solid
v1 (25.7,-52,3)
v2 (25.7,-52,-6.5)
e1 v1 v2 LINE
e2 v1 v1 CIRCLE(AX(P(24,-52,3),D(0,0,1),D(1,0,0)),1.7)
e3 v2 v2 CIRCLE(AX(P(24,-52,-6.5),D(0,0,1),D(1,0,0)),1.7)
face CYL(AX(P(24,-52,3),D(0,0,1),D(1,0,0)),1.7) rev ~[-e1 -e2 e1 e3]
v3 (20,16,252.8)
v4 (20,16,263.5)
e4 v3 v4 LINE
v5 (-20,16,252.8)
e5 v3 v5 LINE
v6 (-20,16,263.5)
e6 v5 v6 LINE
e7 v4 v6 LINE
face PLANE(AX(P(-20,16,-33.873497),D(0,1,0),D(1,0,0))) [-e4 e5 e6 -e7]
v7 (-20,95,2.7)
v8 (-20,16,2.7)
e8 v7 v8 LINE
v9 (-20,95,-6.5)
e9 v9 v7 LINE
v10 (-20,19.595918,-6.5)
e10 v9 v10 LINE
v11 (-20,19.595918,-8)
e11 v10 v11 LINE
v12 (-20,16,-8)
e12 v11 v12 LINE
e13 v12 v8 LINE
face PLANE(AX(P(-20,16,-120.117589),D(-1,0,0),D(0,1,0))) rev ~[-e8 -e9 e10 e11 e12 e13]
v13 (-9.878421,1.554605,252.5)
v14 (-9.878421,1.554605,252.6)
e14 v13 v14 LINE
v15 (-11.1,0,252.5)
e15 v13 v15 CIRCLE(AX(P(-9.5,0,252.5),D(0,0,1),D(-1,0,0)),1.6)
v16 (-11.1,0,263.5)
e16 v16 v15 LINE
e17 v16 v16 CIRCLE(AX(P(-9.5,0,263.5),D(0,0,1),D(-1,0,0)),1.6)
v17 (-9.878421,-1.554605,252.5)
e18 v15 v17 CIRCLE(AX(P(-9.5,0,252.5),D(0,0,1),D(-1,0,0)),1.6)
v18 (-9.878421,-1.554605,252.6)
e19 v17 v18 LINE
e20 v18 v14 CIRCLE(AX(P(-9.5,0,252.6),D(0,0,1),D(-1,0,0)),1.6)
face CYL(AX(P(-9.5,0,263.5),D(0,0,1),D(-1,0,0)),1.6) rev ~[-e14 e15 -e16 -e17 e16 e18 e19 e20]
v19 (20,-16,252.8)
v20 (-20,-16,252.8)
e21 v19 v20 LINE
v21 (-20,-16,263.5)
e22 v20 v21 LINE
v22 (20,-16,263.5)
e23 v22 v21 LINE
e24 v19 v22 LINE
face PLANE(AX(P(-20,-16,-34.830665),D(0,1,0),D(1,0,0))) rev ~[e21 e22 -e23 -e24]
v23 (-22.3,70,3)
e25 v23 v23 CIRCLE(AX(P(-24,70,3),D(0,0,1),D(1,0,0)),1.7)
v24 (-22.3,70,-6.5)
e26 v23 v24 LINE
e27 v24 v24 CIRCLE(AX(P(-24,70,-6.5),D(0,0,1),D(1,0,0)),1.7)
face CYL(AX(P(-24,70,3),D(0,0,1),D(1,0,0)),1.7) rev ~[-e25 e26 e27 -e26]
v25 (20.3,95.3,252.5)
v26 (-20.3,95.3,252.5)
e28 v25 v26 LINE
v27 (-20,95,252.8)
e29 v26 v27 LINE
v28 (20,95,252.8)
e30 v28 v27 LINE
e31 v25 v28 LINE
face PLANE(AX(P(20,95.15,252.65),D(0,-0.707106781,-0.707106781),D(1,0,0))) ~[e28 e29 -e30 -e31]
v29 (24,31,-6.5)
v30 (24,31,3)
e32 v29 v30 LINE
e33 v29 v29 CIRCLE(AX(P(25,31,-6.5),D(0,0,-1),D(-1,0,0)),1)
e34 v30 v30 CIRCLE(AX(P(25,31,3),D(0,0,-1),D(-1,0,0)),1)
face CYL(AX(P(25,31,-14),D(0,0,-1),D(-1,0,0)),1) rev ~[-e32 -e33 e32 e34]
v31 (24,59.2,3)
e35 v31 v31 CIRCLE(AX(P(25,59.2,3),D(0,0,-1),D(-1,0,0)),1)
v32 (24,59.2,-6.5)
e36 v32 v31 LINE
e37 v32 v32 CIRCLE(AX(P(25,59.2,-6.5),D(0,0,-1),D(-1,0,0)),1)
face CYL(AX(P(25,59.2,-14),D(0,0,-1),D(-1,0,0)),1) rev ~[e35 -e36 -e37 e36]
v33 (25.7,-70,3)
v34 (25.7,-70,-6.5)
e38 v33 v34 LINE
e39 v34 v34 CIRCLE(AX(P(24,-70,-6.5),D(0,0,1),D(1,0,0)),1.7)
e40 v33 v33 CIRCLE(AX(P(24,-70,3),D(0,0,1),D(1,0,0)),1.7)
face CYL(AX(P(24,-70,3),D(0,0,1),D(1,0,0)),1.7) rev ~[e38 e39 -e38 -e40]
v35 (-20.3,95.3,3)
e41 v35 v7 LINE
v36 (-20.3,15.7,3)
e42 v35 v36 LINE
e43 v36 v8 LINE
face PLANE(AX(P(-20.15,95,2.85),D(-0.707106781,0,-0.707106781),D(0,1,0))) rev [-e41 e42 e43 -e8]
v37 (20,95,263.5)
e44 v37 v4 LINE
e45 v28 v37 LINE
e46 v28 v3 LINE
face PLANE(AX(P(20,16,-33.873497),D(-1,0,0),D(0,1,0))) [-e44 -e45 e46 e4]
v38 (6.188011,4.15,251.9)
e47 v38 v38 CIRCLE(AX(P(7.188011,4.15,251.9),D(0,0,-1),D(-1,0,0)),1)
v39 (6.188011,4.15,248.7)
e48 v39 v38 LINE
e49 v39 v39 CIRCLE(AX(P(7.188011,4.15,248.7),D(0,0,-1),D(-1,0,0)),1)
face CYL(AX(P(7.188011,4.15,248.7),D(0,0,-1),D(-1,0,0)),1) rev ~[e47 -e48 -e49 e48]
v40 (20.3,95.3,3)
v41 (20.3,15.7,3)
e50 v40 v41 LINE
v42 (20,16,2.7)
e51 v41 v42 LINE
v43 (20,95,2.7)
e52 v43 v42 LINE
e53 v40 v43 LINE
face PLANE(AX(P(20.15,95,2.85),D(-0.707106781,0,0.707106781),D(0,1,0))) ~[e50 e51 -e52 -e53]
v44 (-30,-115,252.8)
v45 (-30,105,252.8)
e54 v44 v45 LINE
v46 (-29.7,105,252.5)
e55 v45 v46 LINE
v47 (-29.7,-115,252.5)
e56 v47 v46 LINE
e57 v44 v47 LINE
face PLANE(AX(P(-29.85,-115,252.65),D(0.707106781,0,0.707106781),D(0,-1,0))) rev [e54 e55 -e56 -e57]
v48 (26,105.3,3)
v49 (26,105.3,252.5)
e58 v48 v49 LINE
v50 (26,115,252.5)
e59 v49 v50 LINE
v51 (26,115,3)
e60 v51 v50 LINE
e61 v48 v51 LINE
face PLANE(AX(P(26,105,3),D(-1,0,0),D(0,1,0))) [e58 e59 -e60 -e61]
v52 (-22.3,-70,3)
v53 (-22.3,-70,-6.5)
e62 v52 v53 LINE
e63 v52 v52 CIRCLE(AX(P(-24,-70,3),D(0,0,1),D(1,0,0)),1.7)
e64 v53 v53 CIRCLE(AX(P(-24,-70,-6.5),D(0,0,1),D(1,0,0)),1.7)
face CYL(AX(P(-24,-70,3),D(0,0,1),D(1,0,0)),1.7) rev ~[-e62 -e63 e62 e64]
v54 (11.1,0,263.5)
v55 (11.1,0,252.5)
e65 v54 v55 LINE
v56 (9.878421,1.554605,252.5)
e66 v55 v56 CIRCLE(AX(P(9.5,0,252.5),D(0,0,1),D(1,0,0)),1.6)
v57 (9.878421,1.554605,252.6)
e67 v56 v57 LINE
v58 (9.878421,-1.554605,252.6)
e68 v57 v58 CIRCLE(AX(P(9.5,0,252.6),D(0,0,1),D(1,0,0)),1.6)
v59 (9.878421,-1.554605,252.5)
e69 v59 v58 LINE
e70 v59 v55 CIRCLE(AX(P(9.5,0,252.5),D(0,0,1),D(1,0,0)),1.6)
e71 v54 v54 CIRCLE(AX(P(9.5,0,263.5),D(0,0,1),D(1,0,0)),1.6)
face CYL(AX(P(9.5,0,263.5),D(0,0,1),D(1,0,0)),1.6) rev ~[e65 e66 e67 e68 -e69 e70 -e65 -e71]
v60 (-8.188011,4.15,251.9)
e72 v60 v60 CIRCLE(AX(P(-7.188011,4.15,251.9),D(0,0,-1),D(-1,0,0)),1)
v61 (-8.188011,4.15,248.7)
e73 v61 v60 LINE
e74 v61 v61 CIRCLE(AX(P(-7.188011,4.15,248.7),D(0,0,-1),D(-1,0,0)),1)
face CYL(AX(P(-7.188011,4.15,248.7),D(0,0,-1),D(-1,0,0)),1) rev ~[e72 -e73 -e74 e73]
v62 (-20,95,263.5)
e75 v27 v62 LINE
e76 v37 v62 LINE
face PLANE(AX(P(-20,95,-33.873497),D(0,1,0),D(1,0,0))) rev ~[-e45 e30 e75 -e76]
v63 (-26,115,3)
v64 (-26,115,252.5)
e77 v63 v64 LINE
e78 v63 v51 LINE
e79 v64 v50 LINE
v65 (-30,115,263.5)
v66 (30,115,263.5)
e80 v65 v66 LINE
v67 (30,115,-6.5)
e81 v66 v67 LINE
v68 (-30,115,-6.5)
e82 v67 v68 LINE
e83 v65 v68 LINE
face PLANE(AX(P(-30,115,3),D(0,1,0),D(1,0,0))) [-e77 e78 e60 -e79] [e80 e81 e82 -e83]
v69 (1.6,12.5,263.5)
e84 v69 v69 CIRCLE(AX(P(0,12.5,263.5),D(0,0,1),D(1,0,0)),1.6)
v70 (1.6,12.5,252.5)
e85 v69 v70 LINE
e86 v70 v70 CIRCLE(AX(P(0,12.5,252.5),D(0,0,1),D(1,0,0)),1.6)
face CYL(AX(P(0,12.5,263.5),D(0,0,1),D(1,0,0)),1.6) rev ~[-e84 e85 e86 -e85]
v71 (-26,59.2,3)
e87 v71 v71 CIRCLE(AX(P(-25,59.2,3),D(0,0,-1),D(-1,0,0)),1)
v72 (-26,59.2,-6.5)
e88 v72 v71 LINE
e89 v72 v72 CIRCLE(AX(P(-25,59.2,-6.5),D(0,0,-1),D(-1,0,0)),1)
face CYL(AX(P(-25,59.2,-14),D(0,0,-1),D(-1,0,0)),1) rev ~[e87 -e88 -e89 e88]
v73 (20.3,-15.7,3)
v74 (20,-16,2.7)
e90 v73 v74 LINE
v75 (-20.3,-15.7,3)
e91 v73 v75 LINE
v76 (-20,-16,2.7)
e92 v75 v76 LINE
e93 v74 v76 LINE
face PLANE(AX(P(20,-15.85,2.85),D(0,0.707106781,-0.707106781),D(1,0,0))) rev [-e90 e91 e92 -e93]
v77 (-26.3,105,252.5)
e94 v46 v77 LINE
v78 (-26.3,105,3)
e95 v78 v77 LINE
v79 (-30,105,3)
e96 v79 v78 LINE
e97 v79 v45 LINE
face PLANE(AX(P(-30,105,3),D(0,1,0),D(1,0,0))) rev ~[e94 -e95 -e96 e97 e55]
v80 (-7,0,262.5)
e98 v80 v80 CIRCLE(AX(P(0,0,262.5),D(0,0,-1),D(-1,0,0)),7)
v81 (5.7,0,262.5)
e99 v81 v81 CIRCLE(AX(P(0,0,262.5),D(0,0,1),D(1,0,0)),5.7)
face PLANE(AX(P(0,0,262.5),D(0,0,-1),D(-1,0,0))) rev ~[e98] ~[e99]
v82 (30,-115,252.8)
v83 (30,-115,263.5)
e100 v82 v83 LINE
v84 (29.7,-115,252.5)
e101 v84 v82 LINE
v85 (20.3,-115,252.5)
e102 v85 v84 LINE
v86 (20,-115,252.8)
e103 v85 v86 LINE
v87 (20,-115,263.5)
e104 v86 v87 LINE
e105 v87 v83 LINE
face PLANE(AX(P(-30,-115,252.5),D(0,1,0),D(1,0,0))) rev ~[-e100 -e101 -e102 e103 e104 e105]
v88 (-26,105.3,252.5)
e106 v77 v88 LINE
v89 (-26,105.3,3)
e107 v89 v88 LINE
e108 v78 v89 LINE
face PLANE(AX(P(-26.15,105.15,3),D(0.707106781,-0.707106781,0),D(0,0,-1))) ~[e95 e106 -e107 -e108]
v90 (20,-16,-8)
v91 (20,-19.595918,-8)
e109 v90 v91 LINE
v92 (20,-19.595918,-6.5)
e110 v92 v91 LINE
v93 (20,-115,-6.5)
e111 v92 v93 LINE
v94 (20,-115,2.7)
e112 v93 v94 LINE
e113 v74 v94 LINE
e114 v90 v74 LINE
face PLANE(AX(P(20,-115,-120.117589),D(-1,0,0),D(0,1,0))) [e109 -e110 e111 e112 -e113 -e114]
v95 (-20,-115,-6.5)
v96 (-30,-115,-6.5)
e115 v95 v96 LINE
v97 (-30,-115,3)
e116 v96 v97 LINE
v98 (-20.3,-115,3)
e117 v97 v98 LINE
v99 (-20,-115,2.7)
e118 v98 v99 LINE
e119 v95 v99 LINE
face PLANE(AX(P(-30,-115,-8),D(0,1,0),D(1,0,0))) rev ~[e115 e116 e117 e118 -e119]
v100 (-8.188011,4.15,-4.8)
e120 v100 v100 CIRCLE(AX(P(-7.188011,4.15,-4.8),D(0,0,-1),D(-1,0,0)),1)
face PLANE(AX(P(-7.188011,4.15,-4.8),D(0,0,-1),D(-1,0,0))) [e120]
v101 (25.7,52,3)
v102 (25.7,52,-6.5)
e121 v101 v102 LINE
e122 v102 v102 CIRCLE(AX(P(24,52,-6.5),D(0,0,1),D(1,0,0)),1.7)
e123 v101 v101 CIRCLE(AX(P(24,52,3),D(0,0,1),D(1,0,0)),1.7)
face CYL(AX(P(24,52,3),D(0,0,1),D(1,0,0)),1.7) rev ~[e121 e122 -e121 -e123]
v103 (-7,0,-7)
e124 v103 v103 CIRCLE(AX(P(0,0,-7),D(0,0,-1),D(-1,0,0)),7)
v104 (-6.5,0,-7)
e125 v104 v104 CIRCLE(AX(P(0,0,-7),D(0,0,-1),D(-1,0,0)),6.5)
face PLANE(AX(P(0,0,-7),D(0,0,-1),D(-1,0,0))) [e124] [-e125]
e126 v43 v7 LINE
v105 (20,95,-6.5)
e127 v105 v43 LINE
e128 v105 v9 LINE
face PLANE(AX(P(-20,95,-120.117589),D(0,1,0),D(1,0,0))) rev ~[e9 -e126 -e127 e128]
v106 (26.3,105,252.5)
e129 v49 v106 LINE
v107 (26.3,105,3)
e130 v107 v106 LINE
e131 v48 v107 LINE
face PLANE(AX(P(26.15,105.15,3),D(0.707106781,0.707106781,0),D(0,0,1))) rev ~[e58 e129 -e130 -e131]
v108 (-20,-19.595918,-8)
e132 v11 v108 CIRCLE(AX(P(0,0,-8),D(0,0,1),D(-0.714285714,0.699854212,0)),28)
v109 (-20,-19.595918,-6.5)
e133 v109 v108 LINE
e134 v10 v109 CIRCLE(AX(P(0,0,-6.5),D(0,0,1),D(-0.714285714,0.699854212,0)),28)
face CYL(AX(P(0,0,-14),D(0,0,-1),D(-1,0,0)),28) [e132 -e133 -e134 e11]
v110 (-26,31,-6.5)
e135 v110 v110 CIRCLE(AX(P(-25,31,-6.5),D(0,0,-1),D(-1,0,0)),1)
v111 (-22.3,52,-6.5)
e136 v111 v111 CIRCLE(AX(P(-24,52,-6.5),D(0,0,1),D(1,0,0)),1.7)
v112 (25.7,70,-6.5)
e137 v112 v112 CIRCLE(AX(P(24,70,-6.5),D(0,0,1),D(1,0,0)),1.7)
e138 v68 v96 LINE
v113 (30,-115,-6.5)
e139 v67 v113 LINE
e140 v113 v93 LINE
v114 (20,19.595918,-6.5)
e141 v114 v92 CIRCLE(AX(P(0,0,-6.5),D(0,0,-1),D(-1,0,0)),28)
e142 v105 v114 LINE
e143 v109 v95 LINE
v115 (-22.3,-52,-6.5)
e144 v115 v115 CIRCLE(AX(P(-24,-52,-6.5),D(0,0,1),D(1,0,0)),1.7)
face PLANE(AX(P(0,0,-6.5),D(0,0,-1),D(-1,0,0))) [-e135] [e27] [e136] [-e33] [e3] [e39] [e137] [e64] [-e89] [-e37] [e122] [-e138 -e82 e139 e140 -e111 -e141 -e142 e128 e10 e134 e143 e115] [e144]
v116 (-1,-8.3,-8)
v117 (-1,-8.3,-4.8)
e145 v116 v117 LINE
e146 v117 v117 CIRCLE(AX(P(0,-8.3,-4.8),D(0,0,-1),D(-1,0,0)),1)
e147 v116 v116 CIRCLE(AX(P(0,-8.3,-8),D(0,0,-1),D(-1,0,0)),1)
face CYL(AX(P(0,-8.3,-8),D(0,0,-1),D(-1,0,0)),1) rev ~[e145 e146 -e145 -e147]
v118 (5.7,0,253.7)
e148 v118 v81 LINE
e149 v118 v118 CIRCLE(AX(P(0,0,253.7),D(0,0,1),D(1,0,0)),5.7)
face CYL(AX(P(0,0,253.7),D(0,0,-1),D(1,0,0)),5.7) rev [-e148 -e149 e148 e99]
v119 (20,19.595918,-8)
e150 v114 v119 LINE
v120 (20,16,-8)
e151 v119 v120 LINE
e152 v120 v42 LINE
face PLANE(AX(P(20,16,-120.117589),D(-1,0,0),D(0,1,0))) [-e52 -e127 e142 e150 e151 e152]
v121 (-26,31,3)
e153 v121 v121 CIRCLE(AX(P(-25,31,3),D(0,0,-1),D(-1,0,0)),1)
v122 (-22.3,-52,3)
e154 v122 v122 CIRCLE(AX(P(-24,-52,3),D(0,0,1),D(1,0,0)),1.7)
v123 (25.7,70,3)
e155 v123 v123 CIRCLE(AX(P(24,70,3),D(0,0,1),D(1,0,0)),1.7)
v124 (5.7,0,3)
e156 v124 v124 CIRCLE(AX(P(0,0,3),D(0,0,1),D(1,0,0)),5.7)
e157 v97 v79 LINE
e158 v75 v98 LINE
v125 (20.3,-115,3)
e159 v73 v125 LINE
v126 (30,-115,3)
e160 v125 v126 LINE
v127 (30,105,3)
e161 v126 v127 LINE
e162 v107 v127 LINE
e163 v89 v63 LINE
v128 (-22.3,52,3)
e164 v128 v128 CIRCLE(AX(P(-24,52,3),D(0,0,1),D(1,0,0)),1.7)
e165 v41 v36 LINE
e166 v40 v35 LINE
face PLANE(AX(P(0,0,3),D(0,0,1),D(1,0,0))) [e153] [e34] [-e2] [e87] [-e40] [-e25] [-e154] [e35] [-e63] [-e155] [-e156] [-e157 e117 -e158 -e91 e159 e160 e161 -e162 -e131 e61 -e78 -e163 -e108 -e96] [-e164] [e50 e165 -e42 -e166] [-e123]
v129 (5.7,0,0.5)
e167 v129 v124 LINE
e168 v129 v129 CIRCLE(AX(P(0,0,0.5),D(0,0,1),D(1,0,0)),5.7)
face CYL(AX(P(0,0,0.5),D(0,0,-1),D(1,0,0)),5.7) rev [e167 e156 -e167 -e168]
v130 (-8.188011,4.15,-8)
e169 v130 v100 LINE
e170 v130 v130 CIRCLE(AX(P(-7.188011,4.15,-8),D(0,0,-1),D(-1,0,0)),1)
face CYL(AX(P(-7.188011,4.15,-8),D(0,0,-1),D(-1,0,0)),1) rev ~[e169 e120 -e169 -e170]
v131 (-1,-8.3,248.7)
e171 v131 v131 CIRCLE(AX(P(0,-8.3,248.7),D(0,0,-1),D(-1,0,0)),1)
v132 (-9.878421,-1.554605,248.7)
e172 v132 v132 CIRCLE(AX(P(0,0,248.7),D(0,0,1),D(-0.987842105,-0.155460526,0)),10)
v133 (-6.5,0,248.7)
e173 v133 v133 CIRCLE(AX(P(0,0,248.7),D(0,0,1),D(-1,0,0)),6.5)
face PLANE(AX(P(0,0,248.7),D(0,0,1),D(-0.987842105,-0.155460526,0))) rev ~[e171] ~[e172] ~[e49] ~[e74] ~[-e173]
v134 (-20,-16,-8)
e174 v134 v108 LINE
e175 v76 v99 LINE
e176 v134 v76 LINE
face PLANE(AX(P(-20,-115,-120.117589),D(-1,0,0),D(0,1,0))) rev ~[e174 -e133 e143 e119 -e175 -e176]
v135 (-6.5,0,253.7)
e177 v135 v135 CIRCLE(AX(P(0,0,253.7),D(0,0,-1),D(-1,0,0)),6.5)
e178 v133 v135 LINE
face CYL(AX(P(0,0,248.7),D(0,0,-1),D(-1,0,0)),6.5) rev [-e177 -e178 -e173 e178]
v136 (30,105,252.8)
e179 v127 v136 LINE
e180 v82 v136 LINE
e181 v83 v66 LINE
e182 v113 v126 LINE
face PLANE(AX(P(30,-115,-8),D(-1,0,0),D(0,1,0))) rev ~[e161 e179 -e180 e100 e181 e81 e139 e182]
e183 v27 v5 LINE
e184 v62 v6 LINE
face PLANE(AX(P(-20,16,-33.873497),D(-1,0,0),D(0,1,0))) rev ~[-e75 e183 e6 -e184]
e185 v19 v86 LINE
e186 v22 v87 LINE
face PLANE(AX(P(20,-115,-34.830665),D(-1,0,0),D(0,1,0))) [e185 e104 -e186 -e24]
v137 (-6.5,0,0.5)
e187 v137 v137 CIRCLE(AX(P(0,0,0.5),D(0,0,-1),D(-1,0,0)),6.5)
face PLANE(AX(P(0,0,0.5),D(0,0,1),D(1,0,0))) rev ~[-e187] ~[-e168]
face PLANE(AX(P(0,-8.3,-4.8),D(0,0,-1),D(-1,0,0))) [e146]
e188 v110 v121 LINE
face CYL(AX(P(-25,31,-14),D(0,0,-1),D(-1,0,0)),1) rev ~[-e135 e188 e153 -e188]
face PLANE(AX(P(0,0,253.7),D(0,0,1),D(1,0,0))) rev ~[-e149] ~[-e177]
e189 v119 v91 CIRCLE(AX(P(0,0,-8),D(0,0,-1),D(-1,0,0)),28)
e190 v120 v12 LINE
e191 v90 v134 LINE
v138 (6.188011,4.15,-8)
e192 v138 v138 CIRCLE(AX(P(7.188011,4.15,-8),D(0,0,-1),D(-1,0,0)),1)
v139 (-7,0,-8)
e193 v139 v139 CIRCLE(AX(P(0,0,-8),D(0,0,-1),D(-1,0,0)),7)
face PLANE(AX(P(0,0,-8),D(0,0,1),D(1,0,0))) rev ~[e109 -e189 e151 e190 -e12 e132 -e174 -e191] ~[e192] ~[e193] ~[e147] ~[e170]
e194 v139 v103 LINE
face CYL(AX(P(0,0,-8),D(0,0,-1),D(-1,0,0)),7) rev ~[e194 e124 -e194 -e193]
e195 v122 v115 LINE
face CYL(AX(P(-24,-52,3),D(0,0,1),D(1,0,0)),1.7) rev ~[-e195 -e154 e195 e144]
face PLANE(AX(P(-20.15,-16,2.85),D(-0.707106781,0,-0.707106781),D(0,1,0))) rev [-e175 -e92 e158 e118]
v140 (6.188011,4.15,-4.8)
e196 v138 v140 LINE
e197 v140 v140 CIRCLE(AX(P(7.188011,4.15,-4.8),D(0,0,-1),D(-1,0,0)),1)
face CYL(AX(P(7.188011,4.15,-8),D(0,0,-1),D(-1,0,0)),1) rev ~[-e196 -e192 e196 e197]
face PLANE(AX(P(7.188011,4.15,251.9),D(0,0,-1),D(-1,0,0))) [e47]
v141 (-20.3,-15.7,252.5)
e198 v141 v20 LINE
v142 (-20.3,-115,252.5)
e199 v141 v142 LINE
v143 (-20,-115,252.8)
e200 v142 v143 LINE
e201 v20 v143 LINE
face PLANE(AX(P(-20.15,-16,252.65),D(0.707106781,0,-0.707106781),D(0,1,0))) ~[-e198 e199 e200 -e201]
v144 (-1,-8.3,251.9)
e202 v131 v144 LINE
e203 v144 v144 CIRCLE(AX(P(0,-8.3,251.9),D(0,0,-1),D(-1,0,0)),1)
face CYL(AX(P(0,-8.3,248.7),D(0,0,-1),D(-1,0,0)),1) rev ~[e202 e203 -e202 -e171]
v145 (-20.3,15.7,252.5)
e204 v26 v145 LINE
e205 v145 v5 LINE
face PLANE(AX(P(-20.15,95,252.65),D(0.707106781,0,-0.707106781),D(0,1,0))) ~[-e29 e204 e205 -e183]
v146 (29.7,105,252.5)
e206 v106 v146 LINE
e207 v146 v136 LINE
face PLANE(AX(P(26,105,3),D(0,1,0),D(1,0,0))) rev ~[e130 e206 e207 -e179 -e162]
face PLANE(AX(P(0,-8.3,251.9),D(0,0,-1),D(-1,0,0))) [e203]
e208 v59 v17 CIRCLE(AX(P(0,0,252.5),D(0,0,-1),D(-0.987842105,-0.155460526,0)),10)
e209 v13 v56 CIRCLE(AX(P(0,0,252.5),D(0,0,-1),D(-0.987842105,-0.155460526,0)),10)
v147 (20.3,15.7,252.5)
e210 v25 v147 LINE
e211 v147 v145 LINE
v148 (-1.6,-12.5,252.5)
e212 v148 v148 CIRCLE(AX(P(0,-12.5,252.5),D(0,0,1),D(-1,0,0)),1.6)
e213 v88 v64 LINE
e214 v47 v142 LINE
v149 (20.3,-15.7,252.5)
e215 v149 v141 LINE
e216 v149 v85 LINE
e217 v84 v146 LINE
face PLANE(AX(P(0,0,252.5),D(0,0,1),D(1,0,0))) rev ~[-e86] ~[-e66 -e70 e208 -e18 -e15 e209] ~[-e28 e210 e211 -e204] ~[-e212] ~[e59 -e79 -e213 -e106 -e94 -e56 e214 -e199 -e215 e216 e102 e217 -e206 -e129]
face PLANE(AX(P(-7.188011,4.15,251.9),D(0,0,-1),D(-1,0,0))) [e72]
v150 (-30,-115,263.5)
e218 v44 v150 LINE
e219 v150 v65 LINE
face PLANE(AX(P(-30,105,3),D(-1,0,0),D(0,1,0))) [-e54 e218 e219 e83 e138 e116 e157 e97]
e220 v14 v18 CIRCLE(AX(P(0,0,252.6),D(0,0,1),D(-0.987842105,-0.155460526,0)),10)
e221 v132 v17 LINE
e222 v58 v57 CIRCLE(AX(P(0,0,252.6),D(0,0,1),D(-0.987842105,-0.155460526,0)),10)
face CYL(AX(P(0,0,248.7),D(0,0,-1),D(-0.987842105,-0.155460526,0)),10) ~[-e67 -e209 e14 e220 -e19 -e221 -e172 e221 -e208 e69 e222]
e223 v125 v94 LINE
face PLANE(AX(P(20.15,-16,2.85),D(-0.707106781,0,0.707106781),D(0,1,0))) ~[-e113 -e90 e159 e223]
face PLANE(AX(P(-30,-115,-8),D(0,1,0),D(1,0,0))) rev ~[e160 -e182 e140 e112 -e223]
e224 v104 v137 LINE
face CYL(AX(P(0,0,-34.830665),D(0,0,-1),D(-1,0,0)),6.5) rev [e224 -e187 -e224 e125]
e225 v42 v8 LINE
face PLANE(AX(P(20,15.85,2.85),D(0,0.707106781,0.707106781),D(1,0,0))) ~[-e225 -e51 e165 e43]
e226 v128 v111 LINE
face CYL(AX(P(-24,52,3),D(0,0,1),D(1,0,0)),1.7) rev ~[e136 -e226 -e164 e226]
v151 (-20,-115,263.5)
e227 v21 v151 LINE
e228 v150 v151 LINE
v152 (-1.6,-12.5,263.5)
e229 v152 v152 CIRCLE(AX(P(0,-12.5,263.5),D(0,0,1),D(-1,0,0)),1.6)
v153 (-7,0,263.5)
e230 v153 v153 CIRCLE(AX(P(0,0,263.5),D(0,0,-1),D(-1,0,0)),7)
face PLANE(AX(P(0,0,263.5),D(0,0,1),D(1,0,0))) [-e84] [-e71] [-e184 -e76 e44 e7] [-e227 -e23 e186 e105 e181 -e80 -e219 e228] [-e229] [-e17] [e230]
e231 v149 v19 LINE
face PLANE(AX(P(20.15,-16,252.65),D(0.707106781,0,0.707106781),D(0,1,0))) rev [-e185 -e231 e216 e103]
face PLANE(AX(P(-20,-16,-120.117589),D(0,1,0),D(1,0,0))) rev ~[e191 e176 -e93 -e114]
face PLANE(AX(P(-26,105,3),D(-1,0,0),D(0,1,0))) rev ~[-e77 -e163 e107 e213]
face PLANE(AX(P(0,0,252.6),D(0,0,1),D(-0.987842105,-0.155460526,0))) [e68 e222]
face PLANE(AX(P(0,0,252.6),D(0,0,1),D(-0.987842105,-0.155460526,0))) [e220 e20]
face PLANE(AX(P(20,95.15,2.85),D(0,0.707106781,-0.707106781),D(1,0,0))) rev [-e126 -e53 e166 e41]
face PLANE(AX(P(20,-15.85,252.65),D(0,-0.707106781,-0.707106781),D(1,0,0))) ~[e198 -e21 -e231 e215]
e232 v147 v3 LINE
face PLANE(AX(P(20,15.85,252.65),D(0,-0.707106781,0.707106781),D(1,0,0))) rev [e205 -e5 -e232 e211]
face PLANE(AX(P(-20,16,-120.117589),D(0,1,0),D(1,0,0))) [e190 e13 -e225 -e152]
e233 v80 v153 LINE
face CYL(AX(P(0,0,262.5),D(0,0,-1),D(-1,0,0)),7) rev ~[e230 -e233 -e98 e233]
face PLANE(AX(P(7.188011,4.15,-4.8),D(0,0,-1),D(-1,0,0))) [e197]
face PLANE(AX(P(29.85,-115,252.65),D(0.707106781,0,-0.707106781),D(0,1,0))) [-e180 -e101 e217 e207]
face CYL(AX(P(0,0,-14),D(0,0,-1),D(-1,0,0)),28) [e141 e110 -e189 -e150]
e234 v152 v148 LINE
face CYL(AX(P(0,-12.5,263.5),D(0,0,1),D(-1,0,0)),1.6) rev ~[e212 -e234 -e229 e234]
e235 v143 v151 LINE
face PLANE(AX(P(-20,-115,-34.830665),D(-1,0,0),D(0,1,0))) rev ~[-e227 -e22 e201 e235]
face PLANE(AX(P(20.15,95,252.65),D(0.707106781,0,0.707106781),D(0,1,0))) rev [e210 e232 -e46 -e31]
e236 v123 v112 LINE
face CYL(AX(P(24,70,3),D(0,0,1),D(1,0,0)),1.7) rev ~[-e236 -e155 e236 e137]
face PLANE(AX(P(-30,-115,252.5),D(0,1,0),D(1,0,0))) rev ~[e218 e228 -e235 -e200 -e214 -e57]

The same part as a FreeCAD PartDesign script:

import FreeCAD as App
import Part
import Sketcher

V = App.Vector
Q = App.Units.Quantity


def edges_at(feature, points):
    """Names of the edges that pass closest to the given points."""
    edges = feature.Shape.Edges
    near = lambda p: min(range(len(edges)), key=lambda i: edges[i].distToShape(Part.Vertex(*p))[0])
    return sorted({f"Edge{near(p) + 1}" for p in points})


def add_polygon(sketch, points):
    """Adds a closed chain of lines whose ends are joined by coincident constraints."""
    first, n = sketch.GeometryCount, len(points)
    for a, b in zip(points, points[1:] + points[:1]):
        sketch.addGeometry(Part.LineSegment(App.Vector(*a, 0), App.Vector(*b, 0)), False)
    for i in range(n):
        sketch.addConstraint(Sketcher.Constraint("Coincident", first + i, 2, first + (i + 1) % n, 1))

doc = App.newDocument("Part")
body = doc.addObject("PartDesign::Body", "Body")

# Sketch on XY plane
sketch1 = doc.addObject("Sketcher::SketchObject", "Sketch")
body.addObject(sketch1)
sketch1.AttachmentSupport = (doc.XY_Plane, [""])
sketch1.MapMode = "FlatFace"
sketch1.AttachmentOffset = App.Placement(V(0, 0, -8), App.Rotation())
add_polygon(sketch1, [(-30, 115), (-30, -115), (30, -115), (30, 115)])  # lines 0-3
sketch1.addConstraint([
    Sketcher.Constraint("Vertical", 0),
    Sketcher.Constraint("Horizontal", 1),
    Sketcher.Constraint("Vertical", 2),
    Sketcher.Constraint("Horizontal", 3),
    Sketcher.Constraint("Symmetric", 0, 2, 2, 2, -1, 1),
    Sketcher.Constraint("DistanceX", 1, 1, 1, 2, Q("60 mm")),
    Sketcher.Constraint("DistanceY", 0, 2, 0, 1, Q("230 mm")),
])
pad1 = doc.addObject("PartDesign::Pad", "Pad")
body.addObject(pad1)
pad1.Profile = sketch1
pad1.Length = 11

# Sketch on XY plane
sketch2 = doc.addObject("Sketcher::SketchObject", "Sketch001")
body.addObject(sketch2)
sketch2.AttachmentSupport = (doc.XY_Plane, [""])
sketch2.MapMode = "FlatFace"
add_polygon(sketch2, [(-20, -16), (-20, -115), (20, -115), (20, -16)])  # lines 0-3
sketch2.addConstraint([
    Sketcher.Constraint("Vertical", 0),
    Sketcher.Constraint("Horizontal", 1),
    Sketcher.Constraint("Vertical", 2),
    Sketcher.Constraint("Horizontal", 3),
    Sketcher.Constraint("DistanceX", 1, 1, 1, 2, Q("40 mm")),
    Sketcher.Constraint("DistanceY", 0, 2, 0, 1, Q("99 mm")),
    Sketcher.Constraint("DistanceX", 0, 2, -1, 1, Q("20 mm")),
    Sketcher.Constraint("DistanceY", 0, 2, -1, 1, Q("115 mm")),
])
pocket1 = doc.addObject("PartDesign::Pocket", "Pocket")
body.addObject(pocket1)
pocket1.Profile = sketch2
pocket1.Type = "ThroughAll"
pocket1.Midplane = True

# Sketch on XY plane
sketch3 = doc.addObject("Sketcher::SketchObject", "Sketch002")
body.addObject(sketch3)
sketch3.AttachmentSupport = (doc.XY_Plane, [""])
sketch3.MapMode = "FlatFace"
add_polygon(sketch3, [(-20, 95), (-20, 16), (20, 16), (20, 95)])  # lines 0-3
sketch3.addConstraint([
    Sketcher.Constraint("Vertical", 0),
    Sketcher.Constraint("Horizontal", 1),
    Sketcher.Constraint("Vertical", 2),
    Sketcher.Constraint("Horizontal", 3),
    Sketcher.Constraint("DistanceX", 1, 1, 1, 2, Q("40 mm")),
    Sketcher.Constraint("DistanceY", 0, 2, 0, 1, Q("79 mm")),
    Sketcher.Constraint("DistanceX", 0, 2, -1, 1, Q("20 mm")),
    Sketcher.Constraint("DistanceY", -1, 1, 0, 2, Q("16 mm")),
])
pocket2 = doc.addObject("PartDesign::Pocket", "Pocket001")
body.addObject(pocket2)
pocket2.Profile = sketch3
pocket2.Type = "ThroughAll"
pocket2.Midplane = True
body2 = doc.addObject("PartDesign::Body", "Body001")

# Sketch on XY plane
sketch4 = doc.addObject("Sketcher::SketchObject", "Sketch003")
body2.addObject(sketch4)
sketch4.AttachmentSupport = (doc.getObject("XY_Plane001"), [""])
sketch4.MapMode = "FlatFace"
sketch4.AttachmentOffset = App.Placement(V(0, 0, 252.5), App.Rotation())
add_polygon(sketch4, [(-30, 115), (-30, -115), (30, -115), (30, 115)])  # lines 0-3
sketch4.addConstraint([
    Sketcher.Constraint("Vertical", 0),
    Sketcher.Constraint("Horizontal", 1),
    Sketcher.Constraint("Vertical", 2),
    Sketcher.Constraint("Horizontal", 3),
    Sketcher.Constraint("Symmetric", 0, 2, 2, 2, -1, 1),
    Sketcher.Constraint("DistanceX", 1, 1, 1, 2, Q("60 mm")),
    Sketcher.Constraint("DistanceY", 0, 2, 0, 1, Q("230 mm")),
])
pad2 = doc.addObject("PartDesign::Pad", "Pad001")
body2.addObject(pad2)
pad2.Profile = sketch4
pad2.Length = 11

# Sketch on XY plane
sketch5 = doc.addObject("Sketcher::SketchObject", "Sketch004")
body2.addObject(sketch5)
sketch5.AttachmentSupport = (doc.getObject("XY_Plane001"), [""])
sketch5.MapMode = "FlatFace"
sketch5.AttachmentOffset = App.Placement(V(0, 0, 263.5), App.Rotation())
add_polygon(sketch5, [(-20, 95), (-20, 16), (20, 16), (20, 95)])  # lines 0-3
sketch5.addConstraint([
    Sketcher.Constraint("Vertical", 0),
    Sketcher.Constraint("Horizontal", 1),
    Sketcher.Constraint("Vertical", 2),
    Sketcher.Constraint("Horizontal", 3),
    Sketcher.Constraint("DistanceX", 1, 1, 1, 2, Q("40 mm")),
    Sketcher.Constraint("DistanceY", 0, 2, 0, 1, Q("79 mm")),
    Sketcher.Constraint("DistanceX", 0, 2, -1, 1, Q("20 mm")),
    Sketcher.Constraint("DistanceY", -1, 1, 0, 2, Q("16 mm")),
])
pocket3 = doc.addObject("PartDesign::Pocket", "Pocket002")
body2.addObject(pocket3)
pocket3.Profile = sketch5
pocket3.Type = "ThroughAll"
pocket3.Midplane = True

# Sketch on XY plane
sketch6 = doc.addObject("Sketcher::SketchObject", "Sketch005")
body2.addObject(sketch6)
sketch6.AttachmentSupport = (doc.getObject("XY_Plane001"), [""])
sketch6.MapMode = "FlatFace"
sketch6.AttachmentOffset = App.Placement(V(0, 0, 252.5), App.Rotation())
add_polygon(sketch6, [(-20, -16), (-20, -115), (20, -115), (20, -16)])  # lines 0-3
sketch6.addConstraint([
    Sketcher.Constraint("Vertical", 0),
    Sketcher.Constraint("Horizontal", 1),
    Sketcher.Constraint("Vertical", 2),
    Sketcher.Constraint("Horizontal", 3),
    Sketcher.Constraint("DistanceX", 1, 1, 1, 2, Q("40 mm")),
    Sketcher.Constraint("DistanceY", 0, 2, 0, 1, Q("99 mm")),
    Sketcher.Constraint("DistanceX", 0, 2, -1, 1, Q("20 mm")),
    Sketcher.Constraint("DistanceY", 0, 2, -1, 1, Q("115 mm")),
])
pocket4 = doc.addObject("PartDesign::Pocket", "Pocket003")
body2.addObject(pocket4)
pocket4.Profile = sketch6
pocket4.Type = "ThroughAll"
pocket4.Midplane = True
body.AllowCompound = True
doc.recompute()

boolean = doc.addObject("PartDesign::Boolean", "Boolean")
body.addObject(boolean)
boolean.Type = "Fuse"
boolean.addObjects([body2])

# Sketch on XY plane
sketch7 = doc.addObject("Sketcher::SketchObject", "Sketch006")
body.addObject(sketch7)
sketch7.AttachmentSupport = (doc.XY_Plane, [""])
sketch7.MapMode = "FlatFace"
sketch7.AttachmentOffset = App.Placement(V(0, 0, 3), App.Rotation())
add_polygon(sketch7, [(-30, 115), (-30, 105), (-26, 105), (-26, 115)])  # lines 0-3
add_polygon(sketch7, [(26, 115), (26, 105), (30, 105), (30, 115)])  # lines 4-7
sketch7.addConstraint([
    Sketcher.Constraint("Vertical", 0),
    Sketcher.Constraint("Horizontal", 1),
    Sketcher.Constraint("Vertical", 2),
    Sketcher.Constraint("Horizontal", 3),
    Sketcher.Constraint("Vertical", 4),
    Sketcher.Constraint("Horizontal", 5),
    Sketcher.Constraint("Vertical", 6),
    Sketcher.Constraint("Horizontal", 7),
    Sketcher.Constraint("Symmetric", 1, 2, 4, 2, -2),
    Sketcher.Constraint("Symmetric", 3, 2, 6, 2, -2),
    Sketcher.Constraint("DistanceX", 1, 1, 1, 2, Q("4 mm")),
    Sketcher.Constraint("DistanceY", 0, 2, 0, 1, Q("10 mm")),
    Sketcher.Constraint("DistanceX", 0, 2, -1, 1, Q("30 mm")),
    Sketcher.Constraint("DistanceY", -1, 1, 0, 2, Q("105 mm")),
])
pad3 = doc.addObject("PartDesign::Pad", "Pad002")
body.addObject(pad3)
pad3.Profile = sketch7
pad3.Length = 249.5

# Sketch on XY plane
sketch8 = doc.addObject("Sketcher::SketchObject", "Sketch007")
body.addObject(sketch8)
sketch8.AttachmentSupport = (doc.XY_Plane, [""])
sketch8.MapMode = "FlatFace"
sketch8.AttachmentOffset = App.Placement(V(0, 0, 252.5), App.Rotation())
sketch8.addGeometry(Part.Circle(V(0, 0, 0), V(0, 0, 1), 6), False)
sketch8.addConstraint([
    Sketcher.Constraint("Coincident", 0, 3, -1, 1),
    Sketcher.Constraint("Diameter", 0, Q("13 mm")),
])
pocket5 = doc.addObject("PartDesign::Pocket", "Pocket004")
body.addObject(pocket5)
pocket5.Profile = sketch8
pocket5.Type = "ThroughAll"
pocket5.Midplane = True

# Sketch on XY plane
sketch9 = doc.addObject("Sketcher::SketchObject", "Sketch008")
body.addObject(sketch9)
sketch9.AttachmentSupport = (doc.XY_Plane, [""])
sketch9.MapMode = "FlatFace"
sketch9.AttachmentOffset = App.Placement(V(0, 0, 262.5), App.Rotation())
sketch9.addGeometry(Part.Circle(V(0, 0, 0), V(0, 0, 1), 7), False)
sketch9.addConstraint([
    Sketcher.Constraint("Coincident", 0, 3, -1, 1),
    Sketcher.Constraint("Diameter", 0, Q("14 mm")),
])
pocket6 = doc.addObject("PartDesign::Pocket", "Pocket005")
body.addObject(pocket6)
pocket6.Profile = sketch9
pocket6.Length = 1
pocket6.Reversed = True

# Sketch on XY plane
sketch10 = doc.addObject("Sketcher::SketchObject", "Sketch009")
body.addObject(sketch10)
sketch10.AttachmentSupport = (doc.XY_Plane, [""])
sketch10.MapMode = "FlatFace"
sketch10.AttachmentOffset = App.Placement(V(0, 0, -8), App.Rotation())
sketch10.addGeometry(Part.Circle(V(0, 0, 0), V(0, 0, 1), 7), False)
sketch10.addConstraint([
    Sketcher.Constraint("Coincident", 0, 3, -1, 1),
    Sketcher.Constraint("Diameter", 0, Q("14 mm")),
])
pocket7 = doc.addObject("PartDesign::Pocket", "Pocket006")
body.addObject(pocket7)
pocket7.Profile = sketch10
pocket7.Length = 1
pocket7.Reversed = True

# Sketch on XY plane
sketch11 = doc.addObject("Sketcher::SketchObject", "Sketch010")
body.addObject(sketch11)
sketch11.AttachmentSupport = (doc.XY_Plane, [""])
sketch11.MapMode = "FlatFace"
sketch11.AttachmentOffset = App.Placement(V(0, 0, 263.5), App.Rotation())
sketch11.addGeometry(Part.Circle(V(9.5, 0, 0), V(0, 0, 1), 1.6), False)
sketch11.addConstraint([
    Sketcher.Constraint("PointOnObject", 0, 3, -1),
    Sketcher.Constraint("Diameter", 0, Q("3.2 mm")),
    Sketcher.Constraint("DistanceX", -1, 1, 0, 3, Q("9.5 mm")),
])
pocket8 = doc.addObject("PartDesign::Pocket", "Pocket007")
body.addObject(pocket8)
pocket8.Profile = sketch11
pocket8.Type = "UpToFirst"

# Sketch on XY plane
sketch12 = doc.addObject("Sketcher::SketchObject", "Sketch011")
body.addObject(sketch12)
sketch12.AttachmentSupport = (doc.XY_Plane, [""])
sketch12.MapMode = "FlatFace"
sketch12.AttachmentOffset = App.Placement(V(0, 0, 263.5), App.Rotation())
sketch12.addGeometry(Part.Circle(V(-9.5, 0, 0), V(0, 0, 1), 1.6), False)
sketch12.addConstraint([
    Sketcher.Constraint("PointOnObject", 0, 3, -1),
    Sketcher.Constraint("Diameter", 0, Q("3.2 mm")),
    Sketcher.Constraint("DistanceX", 0, 3, -1, 1, Q("9.5 mm")),
])
pocket9 = doc.addObject("PartDesign::Pocket", "Pocket008")
body.addObject(pocket9)
pocket9.Profile = sketch12
pocket9.Type = "UpToFirst"

# Sketch on XY plane
sketch13 = doc.addObject("Sketcher::SketchObject", "Sketch012")
body.addObject(sketch13)
sketch13.AttachmentSupport = (doc.XY_Plane, [""])
sketch13.MapMode = "FlatFace"
sketch13.AttachmentOffset = App.Placement(V(0, 0, 263.5), App.Rotation())
sketch13.addGeometry(Part.Circle(V(0, 12.5, 0), V(0, 0, 1), 1.6), False)
sketch13.addConstraint([
    Sketcher.Constraint("PointOnObject", 0, 3, -2),
    Sketcher.Constraint("Diameter", 0, Q("3.2 mm")),
    Sketcher.Constraint("DistanceY", -1, 1, 0, 3, Q("12.5 mm")),
])
pocket10 = doc.addObject("PartDesign::Pocket", "Pocket009")
body.addObject(pocket10)
pocket10.Profile = sketch13
pocket10.Type = "UpToFirst"

# Sketch on XY plane
sketch14 = doc.addObject("Sketcher::SketchObject", "Sketch013")
body.addObject(sketch14)
sketch14.AttachmentSupport = (doc.XY_Plane, [""])
sketch14.MapMode = "FlatFace"
sketch14.AttachmentOffset = App.Placement(V(0, 0, 263.5), App.Rotation())
sketch14.addGeometry(Part.Circle(V(0, -12.5, 0), V(0, 0, 1), 1.6), False)
sketch14.addConstraint([
    Sketcher.Constraint("PointOnObject", 0, 3, -2),
    Sketcher.Constraint("Diameter", 0, Q("3.2 mm")),
    Sketcher.Constraint("DistanceY", 0, 3, -1, 1, Q("12.5 mm")),
])
pocket11 = doc.addObject("PartDesign::Pocket", "Pocket010")
body.addObject(pocket11)
pocket11.Profile = sketch14
pocket11.Type = "UpToFirst"

# Sketch on XY plane
sketch15 = doc.addObject("Sketcher::SketchObject", "Sketch014")
body.addObject(sketch15)
sketch15.AttachmentSupport = (doc.XY_Plane, [""])
sketch15.MapMode = "FlatFace"
sketch15.AttachmentOffset = App.Placement(V(0, 0, -8), App.Rotation())
add_polygon(sketch15, [(-20, 62), (-20, 28), (-30, 28), (-30, 62)])  # lines 0-3
add_polygon(sketch15, [(30, 62), (30, 28), (20, 28), (20, 62)])  # lines 4-7
sketch15.addConstraint([
    Sketcher.Constraint("Vertical", 0),
    Sketcher.Constraint("Horizontal", 1),
    Sketcher.Constraint("Vertical", 2),
    Sketcher.Constraint("Horizontal", 3),
    Sketcher.Constraint("Vertical", 4),
    Sketcher.Constraint("Horizontal", 5),
    Sketcher.Constraint("Vertical", 6),
    Sketcher.Constraint("Horizontal", 7),
    Sketcher.Constraint("Symmetric", 1, 2, 4, 2, -2),
    Sketcher.Constraint("Symmetric", 3, 2, 6, 2, -2),
    Sketcher.Constraint("DistanceX", 1, 2, 1, 1, Q("10 mm")),
    Sketcher.Constraint("DistanceY", 0, 2, 0, 1, Q("34 mm")),
    Sketcher.Constraint("DistanceX", 0, 2, -1, 1, Q("20 mm")),
    Sketcher.Constraint("DistanceY", -1, 1, 0, 2, Q("28 mm")),
])
pad4 = doc.addObject("PartDesign::Pad", "Pad003")
body.addObject(pad4)
pad4.Profile = sketch15
pad4.Length = 6
pad4.Reversed = True

# Sketch on XY plane
sketch16 = doc.addObject("Sketcher::SketchObject", "Sketch015")
body.addObject(sketch16)
sketch16.AttachmentSupport = (doc.XY_Plane, [""])
sketch16.MapMode = "FlatFace"
sketch16.AttachmentOffset = App.Placement(V(0, 0, -14), App.Rotation())
sketch16.addGeometry(Part.Circle(V(25, 59.2, 0), V(0, 0, 1), 1), False)
sketch16.addConstraint([
    Sketcher.Constraint("Diameter", 0, Q("2 mm")),
    Sketcher.Constraint("DistanceX", -1, 1, 0, 3, Q("25 mm")),
    Sketcher.Constraint("DistanceY", -1, 1, 0, 3, Q("59.2 mm")),
])
pocket12 = doc.addObject("PartDesign::Pocket", "Pocket011")
body.addObject(pocket12)
pocket12.Profile = sketch16
pocket12.Type = "UpToFirst"
pocket12.Reversed = True

# Sketch on XY plane
sketch17 = doc.addObject("Sketcher::SketchObject", "Sketch016")
body.addObject(sketch17)
sketch17.AttachmentSupport = (doc.XY_Plane, [""])
sketch17.MapMode = "FlatFace"
sketch17.AttachmentOffset = App.Placement(V(0, 0, -14), App.Rotation())
sketch17.addGeometry(Part.Circle(V(25, 31, 0), V(0, 0, 1), 1), False)
sketch17.addConstraint([
    Sketcher.Constraint("Diameter", 0, Q("2 mm")),
    Sketcher.Constraint("DistanceX", -1, 1, 0, 3, Q("25 mm")),
    Sketcher.Constraint("DistanceY", -1, 1, 0, 3, Q("31 mm")),
])
pocket13 = doc.addObject("PartDesign::Pocket", "Pocket012")
body.addObject(pocket13)
pocket13.Profile = sketch17
pocket13.Type = "UpToFirst"
pocket13.Reversed = True

# Sketch on XY plane
sketch18 = doc.addObject("Sketcher::SketchObject", "Sketch017")
body.addObject(sketch18)
sketch18.AttachmentSupport = (doc.XY_Plane, [""])
sketch18.MapMode = "FlatFace"
sketch18.AttachmentOffset = App.Placement(V(0, 0, -14), App.Rotation())
sketch18.addGeometry(Part.Circle(V(-25, 59.2, 0), V(0, 0, 1), 1), False)
sketch18.addConstraint([
    Sketcher.Constraint("Diameter", 0, Q("2 mm")),
    Sketcher.Constraint("DistanceX", 0, 3, -1, 1, Q("25 mm")),
    Sketcher.Constraint("DistanceY", -1, 1, 0, 3, Q("59.2 mm")),
])
pocket14 = doc.addObject("PartDesign::Pocket", "Pocket013")
body.addObject(pocket14)
pocket14.Profile = sketch18
pocket14.Type = "UpToFirst"
pocket14.Reversed = True

# Sketch on XY plane
sketch19 = doc.addObject("Sketcher::SketchObject", "Sketch018")
body.addObject(sketch19)
sketch19.AttachmentSupport = (doc.XY_Plane, [""])
sketch19.MapMode = "FlatFace"
sketch19.AttachmentOffset = App.Placement(V(0, 0, -14), App.Rotation())
sketch19.addGeometry(Part.Circle(V(-25, 31, 0), V(0, 0, 1), 1), False)
sketch19.addConstraint([
    Sketcher.Constraint("Diameter", 0, Q("2 mm")),
    Sketcher.Constraint("DistanceX", 0, 3, -1, 1, Q("25 mm")),
    Sketcher.Constraint("DistanceY", -1, 1, 0, 3, Q("31 mm")),
])
pocket15 = doc.addObject("PartDesign::Pocket", "Pocket014")
body.addObject(pocket15)
pocket15.Profile = sketch19
pocket15.Type = "UpToFirst"
pocket15.Reversed = True
doc.recompute()

chamfer = doc.addObject("PartDesign::Chamfer", "Chamfer")
body.addObject(chamfer)
chamfer.Base = (pocket15, edges_at(pocket15, [(-30, -5, 252.5)]))
chamfer.Size = 0.3
doc.recompute()

chamfer2 = doc.addObject("PartDesign::Chamfer", "Chamfer001")
body.addObject(chamfer2)
chamfer2.Base = (chamfer, edges_at(chamfer, [(30, -5, 252.5)]))
chamfer2.Size = 0.3
doc.recompute()

chamfer3 = doc.addObject("PartDesign::Chamfer", "Chamfer002")
body.addObject(chamfer3)
chamfer3.Base = (chamfer2, edges_at(chamfer2, [(-26, 105, 127.75), (26, 105, 127.75)]))
chamfer3.Size = 0.3
doc.recompute()

chamfer4 = doc.addObject("PartDesign::Chamfer", "Chamfer003")
body.addObject(chamfer4)
chamfer4.Base = (chamfer3, edges_at(chamfer3, [
    (-20, -65.5, 3),
    (20, -65.5, 3),
    (0, -16, 3),
    (20, 55.5, 3),
    (0, 95, 3),
    (-20, 55.5, 3),
    (0, 16, 3),
]))
chamfer4.Size = 0.3
doc.recompute()

chamfer5 = doc.addObject("PartDesign::Chamfer", "Chamfer004")
body.addObject(chamfer5)
chamfer5.Base = (chamfer4, edges_at(chamfer4, [
    (20, -65.5, 252.5),
    (0, -16, 252.5),
    (-20, -65.5, 252.5),
    (20, 55.5, 252.5),
    (0, 16, 252.5),
    (-20, 55.5, 252.5),
    (0, 95, 252.5),
]))
chamfer5.Size = 0.3

# Sketch on XY plane
sketch20 = doc.addObject("Sketcher::SketchObject", "Sketch019")
body.addObject(sketch20)
sketch20.AttachmentSupport = (doc.XY_Plane, [""])
sketch20.MapMode = "FlatFace"
sketch20.AttachmentOffset = App.Placement(V(0, 0, 248.7), App.Rotation())
sketch20.addGeometry([
    Part.Circle(V(0, 0, 0), V(0, 0, 1), 10),
    Part.Circle(V(0, 0, 0), V(0, 0, 1), 6),
], False)
sketch20.addConstraint([
    Sketcher.Constraint("Coincident", 0, 3, -1, 1),
    Sketcher.Constraint("Coincident", 1, 3, -1, 1),
    Sketcher.Constraint("Diameter", 0, Q("20 mm")),
    Sketcher.Constraint("Diameter", 1, Q("13 mm")),
])
pad5 = doc.addObject("PartDesign::Pad", "Pad004")
body.addObject(pad5)
pad5.Profile = sketch20
pad5.Length = 3.9

# Sketch on XY plane
sketch21 = doc.addObject("Sketcher::SketchObject", "Sketch020")
body.addObject(sketch21)
sketch21.AttachmentSupport = (doc.XY_Plane, [""])
sketch21.MapMode = "FlatFace"
sketch21.AttachmentOffset = App.Placement(V(0, 0, 0.5), App.Rotation())
sketch21.addGeometry([
    Part.Circle(V(0, 0, 0), V(0, 0, 1), 7),
    Part.Circle(V(0, 0, 0), V(0, 0, 1), 6),
], False)
sketch21.addConstraint([
    Sketcher.Constraint("Coincident", 0, 3, -1, 1),
    Sketcher.Constraint("Coincident", 1, 3, -1, 1),
    Sketcher.Constraint("Diameter", 1, Q("11.4 mm")),
    Sketcher.Constraint("Diameter", 0, Q("13.02 mm")),
])
pad6 = doc.addObject("PartDesign::Pad", "Pad005")
body.addObject(pad6)
pad6.Profile = sketch21
pad6.Length = 2.5

# Sketch on XY plane
sketch22 = doc.addObject("Sketcher::SketchObject", "Sketch021")
body.addObject(sketch22)
sketch22.AttachmentSupport = (doc.XY_Plane, [""])
sketch22.MapMode = "FlatFace"
sketch22.AttachmentOffset = App.Placement(V(0, 0, 253.7), App.Rotation())
sketch22.addGeometry([
    Part.Circle(V(0, 0, 0), V(0, 0, 1), 7),
    Part.Circle(V(0, 0, 0), V(0, 0, 1), 6),
], False)
sketch22.addConstraint([
    Sketcher.Constraint("Coincident", 0, 3, -1, 1),
    Sketcher.Constraint("Coincident", 1, 3, -1, 1),
    Sketcher.Constraint("Diameter", 1, Q("11.4 mm")),
    Sketcher.Constraint("Diameter", 0, Q("13.02 mm")),
])
pad7 = doc.addObject("PartDesign::Pad", "Pad006")
body.addObject(pad7)
pad7.Profile = sketch22
pad7.Length = 8.8

# Sketch on XY plane
sketch23 = doc.addObject("Sketcher::SketchObject", "Sketch022")
body.addObject(sketch23)
sketch23.AttachmentSupport = (doc.XY_Plane, [""])
sketch23.MapMode = "FlatFace"
sketch23.AttachmentOffset = App.Placement(V(0, 0, 3), App.Rotation())
sketch23.addGeometry([
    Part.Circle(V(-24, -52, 0), V(0, 0, 1), 1.7),
    Part.Circle(V(-24, 52, 0), V(0, 0, 1), 1.7),
    Part.Circle(V(24, -52, 0), V(0, 0, 1), 1.7),
    Part.Circle(V(24, 52, 0), V(0, 0, 1), 1.7),
], False)
sketch23.addConstraint([
    Sketcher.Constraint("Equal", 0, 1),
    Sketcher.Constraint("Equal", 1, 2),
    Sketcher.Constraint("Equal", 2, 3),
    Sketcher.Constraint("Symmetric", 1, 3, 2, 3, -1, 1),
    Sketcher.Constraint("Symmetric", 0, 3, 3, 3, -1, 1),
    Sketcher.Constraint("Symmetric", 0, 3, 2, 3, -2),
    Sketcher.Constraint("Diameter", 0, Q("3.4 mm")),
    Sketcher.Constraint("DistanceX", 0, 3, -1, 1, Q("24 mm")),
    Sketcher.Constraint("DistanceY", 0, 3, -1, 1, Q("52 mm")),
])
pocket16 = doc.addObject("PartDesign::Pocket", "Pocket015")
body.addObject(pocket16)
pocket16.Profile = sketch23
pocket16.Length = 17.01

# Sketch on XY plane
sketch24 = doc.addObject("Sketcher::SketchObject", "Sketch023")
body.addObject(sketch24)
sketch24.AttachmentSupport = (doc.XY_Plane, [""])
sketch24.MapMode = "FlatFace"
sketch24.AttachmentOffset = App.Placement(V(0, 0, -8), App.Rotation())
sketch24.addGeometry([
    Part.Circle(V(7.2, 4.2, 0), V(0, 0, 1), 1),
    Part.Circle(V(-7.2, 4.2, 0), V(0, 0, 1), 1),
    Part.Circle(V(0, -8.3, 0), V(0, 0, 1), 1),
], False)
sketch24.addConstraint([
    Sketcher.Constraint("Equal", 0, 1),
    Sketcher.Constraint("Equal", 1, 2),
    Sketcher.Constraint("Symmetric", 0, 3, 1, 3, -2),
    Sketcher.Constraint("PointOnObject", 2, 3, -2),
    Sketcher.Constraint("Diameter", 0, Q("2 mm")),
    Sketcher.Constraint("DistanceY", 2, 3, -1, 1, Q("8.3 mm")),
    Sketcher.Constraint("DistanceY", -1, 1, 0, 3, Q("4.15 mm")),
    Sketcher.Constraint("DistanceX", -1, 1, 0, 3, Q("7.188011 mm")),
])
pocket17 = doc.addObject("PartDesign::Pocket", "Pocket016")
body.addObject(pocket17)
pocket17.Profile = sketch24
pocket17.Length = 3.2
pocket17.Reversed = True

# Sketch on XY plane
sketch25 = doc.addObject("Sketcher::SketchObject", "Sketch024")
body.addObject(sketch25)
sketch25.AttachmentSupport = (doc.XY_Plane, [""])
sketch25.MapMode = "FlatFace"
sketch25.AttachmentOffset = App.Placement(V(0, 0, 248.7), App.Rotation())
sketch25.addGeometry([
    Part.Circle(V(7.2, 4.2, 0), V(0, 0, 1), 1),
    Part.Circle(V(-7.2, 4.2, 0), V(0, 0, 1), 1),
    Part.Circle(V(0, -8.3, 0), V(0, 0, 1), 1),
], False)
sketch25.addConstraint([
    Sketcher.Constraint("Equal", 0, 1),
    Sketcher.Constraint("Equal", 1, 2),
    Sketcher.Constraint("Symmetric", 0, 3, 1, 3, -2),
    Sketcher.Constraint("PointOnObject", 2, 3, -2),
    Sketcher.Constraint("Diameter", 0, Q("2 mm")),
    Sketcher.Constraint("DistanceY", 2, 3, -1, 1, Q("8.3 mm")),
    Sketcher.Constraint("DistanceY", -1, 1, 0, 3, Q("4.15 mm")),
    Sketcher.Constraint("DistanceX", -1, 1, 0, 3, Q("7.188011 mm")),
])
pocket18 = doc.addObject("PartDesign::Pocket", "Pocket017")
body.addObject(pocket18)
pocket18.Profile = sketch25
pocket18.Length = 3.2
pocket18.Reversed = True

# Sketch on XY plane
sketch26 = doc.addObject("Sketcher::SketchObject", "Sketch025")
body.addObject(sketch26)
sketch26.AttachmentSupport = (doc.XY_Plane, [""])
sketch26.MapMode = "FlatFace"
sketch26.AttachmentOffset = App.Placement(V(0, 0, -14), App.Rotation())
sketch26.addGeometry([
    Part.Circle(V(0, 0, 0), V(0, 0, 1), 130),
    Part.Circle(V(0, 0, 0), V(0, 0, 1), 28),
], False)
sketch26.addConstraint([
    Sketcher.Constraint("Coincident", 0, 3, -1, 1),
    Sketcher.Constraint("Coincident", 1, 3, -1, 1),
    Sketcher.Constraint("Diameter", 0, Q("260 mm")),
    Sketcher.Constraint("Diameter", 1, Q("56 mm")),
])
pocket19 = doc.addObject("PartDesign::Pocket", "Pocket018")
body.addObject(pocket19)
pocket19.Profile = sketch26
pocket19.Length = 7.5
pocket19.Reversed = True

# Sketch on XY plane
sketch27 = doc.addObject("Sketcher::SketchObject", "Sketch026")
body.addObject(sketch27)
sketch27.AttachmentSupport = (doc.XY_Plane, [""])
sketch27.MapMode = "FlatFace"
sketch27.AttachmentOffset = App.Placement(V(0, 0, 3), App.Rotation())
sketch27.addGeometry([
    Part.Circle(V(-24, -70, 0), V(0, 0, 1), 1.7),
    Part.Circle(V(-24, 70, 0), V(0, 0, 1), 1.7),
    Part.Circle(V(24, -70, 0), V(0, 0, 1), 1.7),
    Part.Circle(V(24, 70, 0), V(0, 0, 1), 1.7),
], False)
sketch27.addConstraint([
    Sketcher.Constraint("Equal", 0, 1),
    Sketcher.Constraint("Equal", 1, 2),
    Sketcher.Constraint("Equal", 2, 3),
    Sketcher.Constraint("Symmetric", 1, 3, 2, 3, -1, 1),
    Sketcher.Constraint("Symmetric", 0, 3, 3, 3, -1, 1),
    Sketcher.Constraint("Symmetric", 0, 3, 2, 3, -2),
    Sketcher.Constraint("Diameter", 0, Q("3.4 mm")),
    Sketcher.Constraint("DistanceX", 0, 3, -1, 1, Q("24 mm")),
    Sketcher.Constraint("DistanceY", 0, 3, -1, 1, Q("70 mm")),
])
pocket20 = doc.addObject("PartDesign::Pocket", "Pocket019")
body.addObject(pocket20)
pocket20.Profile = sketch27
pocket20.Length = 9.51

doc.recompute()
